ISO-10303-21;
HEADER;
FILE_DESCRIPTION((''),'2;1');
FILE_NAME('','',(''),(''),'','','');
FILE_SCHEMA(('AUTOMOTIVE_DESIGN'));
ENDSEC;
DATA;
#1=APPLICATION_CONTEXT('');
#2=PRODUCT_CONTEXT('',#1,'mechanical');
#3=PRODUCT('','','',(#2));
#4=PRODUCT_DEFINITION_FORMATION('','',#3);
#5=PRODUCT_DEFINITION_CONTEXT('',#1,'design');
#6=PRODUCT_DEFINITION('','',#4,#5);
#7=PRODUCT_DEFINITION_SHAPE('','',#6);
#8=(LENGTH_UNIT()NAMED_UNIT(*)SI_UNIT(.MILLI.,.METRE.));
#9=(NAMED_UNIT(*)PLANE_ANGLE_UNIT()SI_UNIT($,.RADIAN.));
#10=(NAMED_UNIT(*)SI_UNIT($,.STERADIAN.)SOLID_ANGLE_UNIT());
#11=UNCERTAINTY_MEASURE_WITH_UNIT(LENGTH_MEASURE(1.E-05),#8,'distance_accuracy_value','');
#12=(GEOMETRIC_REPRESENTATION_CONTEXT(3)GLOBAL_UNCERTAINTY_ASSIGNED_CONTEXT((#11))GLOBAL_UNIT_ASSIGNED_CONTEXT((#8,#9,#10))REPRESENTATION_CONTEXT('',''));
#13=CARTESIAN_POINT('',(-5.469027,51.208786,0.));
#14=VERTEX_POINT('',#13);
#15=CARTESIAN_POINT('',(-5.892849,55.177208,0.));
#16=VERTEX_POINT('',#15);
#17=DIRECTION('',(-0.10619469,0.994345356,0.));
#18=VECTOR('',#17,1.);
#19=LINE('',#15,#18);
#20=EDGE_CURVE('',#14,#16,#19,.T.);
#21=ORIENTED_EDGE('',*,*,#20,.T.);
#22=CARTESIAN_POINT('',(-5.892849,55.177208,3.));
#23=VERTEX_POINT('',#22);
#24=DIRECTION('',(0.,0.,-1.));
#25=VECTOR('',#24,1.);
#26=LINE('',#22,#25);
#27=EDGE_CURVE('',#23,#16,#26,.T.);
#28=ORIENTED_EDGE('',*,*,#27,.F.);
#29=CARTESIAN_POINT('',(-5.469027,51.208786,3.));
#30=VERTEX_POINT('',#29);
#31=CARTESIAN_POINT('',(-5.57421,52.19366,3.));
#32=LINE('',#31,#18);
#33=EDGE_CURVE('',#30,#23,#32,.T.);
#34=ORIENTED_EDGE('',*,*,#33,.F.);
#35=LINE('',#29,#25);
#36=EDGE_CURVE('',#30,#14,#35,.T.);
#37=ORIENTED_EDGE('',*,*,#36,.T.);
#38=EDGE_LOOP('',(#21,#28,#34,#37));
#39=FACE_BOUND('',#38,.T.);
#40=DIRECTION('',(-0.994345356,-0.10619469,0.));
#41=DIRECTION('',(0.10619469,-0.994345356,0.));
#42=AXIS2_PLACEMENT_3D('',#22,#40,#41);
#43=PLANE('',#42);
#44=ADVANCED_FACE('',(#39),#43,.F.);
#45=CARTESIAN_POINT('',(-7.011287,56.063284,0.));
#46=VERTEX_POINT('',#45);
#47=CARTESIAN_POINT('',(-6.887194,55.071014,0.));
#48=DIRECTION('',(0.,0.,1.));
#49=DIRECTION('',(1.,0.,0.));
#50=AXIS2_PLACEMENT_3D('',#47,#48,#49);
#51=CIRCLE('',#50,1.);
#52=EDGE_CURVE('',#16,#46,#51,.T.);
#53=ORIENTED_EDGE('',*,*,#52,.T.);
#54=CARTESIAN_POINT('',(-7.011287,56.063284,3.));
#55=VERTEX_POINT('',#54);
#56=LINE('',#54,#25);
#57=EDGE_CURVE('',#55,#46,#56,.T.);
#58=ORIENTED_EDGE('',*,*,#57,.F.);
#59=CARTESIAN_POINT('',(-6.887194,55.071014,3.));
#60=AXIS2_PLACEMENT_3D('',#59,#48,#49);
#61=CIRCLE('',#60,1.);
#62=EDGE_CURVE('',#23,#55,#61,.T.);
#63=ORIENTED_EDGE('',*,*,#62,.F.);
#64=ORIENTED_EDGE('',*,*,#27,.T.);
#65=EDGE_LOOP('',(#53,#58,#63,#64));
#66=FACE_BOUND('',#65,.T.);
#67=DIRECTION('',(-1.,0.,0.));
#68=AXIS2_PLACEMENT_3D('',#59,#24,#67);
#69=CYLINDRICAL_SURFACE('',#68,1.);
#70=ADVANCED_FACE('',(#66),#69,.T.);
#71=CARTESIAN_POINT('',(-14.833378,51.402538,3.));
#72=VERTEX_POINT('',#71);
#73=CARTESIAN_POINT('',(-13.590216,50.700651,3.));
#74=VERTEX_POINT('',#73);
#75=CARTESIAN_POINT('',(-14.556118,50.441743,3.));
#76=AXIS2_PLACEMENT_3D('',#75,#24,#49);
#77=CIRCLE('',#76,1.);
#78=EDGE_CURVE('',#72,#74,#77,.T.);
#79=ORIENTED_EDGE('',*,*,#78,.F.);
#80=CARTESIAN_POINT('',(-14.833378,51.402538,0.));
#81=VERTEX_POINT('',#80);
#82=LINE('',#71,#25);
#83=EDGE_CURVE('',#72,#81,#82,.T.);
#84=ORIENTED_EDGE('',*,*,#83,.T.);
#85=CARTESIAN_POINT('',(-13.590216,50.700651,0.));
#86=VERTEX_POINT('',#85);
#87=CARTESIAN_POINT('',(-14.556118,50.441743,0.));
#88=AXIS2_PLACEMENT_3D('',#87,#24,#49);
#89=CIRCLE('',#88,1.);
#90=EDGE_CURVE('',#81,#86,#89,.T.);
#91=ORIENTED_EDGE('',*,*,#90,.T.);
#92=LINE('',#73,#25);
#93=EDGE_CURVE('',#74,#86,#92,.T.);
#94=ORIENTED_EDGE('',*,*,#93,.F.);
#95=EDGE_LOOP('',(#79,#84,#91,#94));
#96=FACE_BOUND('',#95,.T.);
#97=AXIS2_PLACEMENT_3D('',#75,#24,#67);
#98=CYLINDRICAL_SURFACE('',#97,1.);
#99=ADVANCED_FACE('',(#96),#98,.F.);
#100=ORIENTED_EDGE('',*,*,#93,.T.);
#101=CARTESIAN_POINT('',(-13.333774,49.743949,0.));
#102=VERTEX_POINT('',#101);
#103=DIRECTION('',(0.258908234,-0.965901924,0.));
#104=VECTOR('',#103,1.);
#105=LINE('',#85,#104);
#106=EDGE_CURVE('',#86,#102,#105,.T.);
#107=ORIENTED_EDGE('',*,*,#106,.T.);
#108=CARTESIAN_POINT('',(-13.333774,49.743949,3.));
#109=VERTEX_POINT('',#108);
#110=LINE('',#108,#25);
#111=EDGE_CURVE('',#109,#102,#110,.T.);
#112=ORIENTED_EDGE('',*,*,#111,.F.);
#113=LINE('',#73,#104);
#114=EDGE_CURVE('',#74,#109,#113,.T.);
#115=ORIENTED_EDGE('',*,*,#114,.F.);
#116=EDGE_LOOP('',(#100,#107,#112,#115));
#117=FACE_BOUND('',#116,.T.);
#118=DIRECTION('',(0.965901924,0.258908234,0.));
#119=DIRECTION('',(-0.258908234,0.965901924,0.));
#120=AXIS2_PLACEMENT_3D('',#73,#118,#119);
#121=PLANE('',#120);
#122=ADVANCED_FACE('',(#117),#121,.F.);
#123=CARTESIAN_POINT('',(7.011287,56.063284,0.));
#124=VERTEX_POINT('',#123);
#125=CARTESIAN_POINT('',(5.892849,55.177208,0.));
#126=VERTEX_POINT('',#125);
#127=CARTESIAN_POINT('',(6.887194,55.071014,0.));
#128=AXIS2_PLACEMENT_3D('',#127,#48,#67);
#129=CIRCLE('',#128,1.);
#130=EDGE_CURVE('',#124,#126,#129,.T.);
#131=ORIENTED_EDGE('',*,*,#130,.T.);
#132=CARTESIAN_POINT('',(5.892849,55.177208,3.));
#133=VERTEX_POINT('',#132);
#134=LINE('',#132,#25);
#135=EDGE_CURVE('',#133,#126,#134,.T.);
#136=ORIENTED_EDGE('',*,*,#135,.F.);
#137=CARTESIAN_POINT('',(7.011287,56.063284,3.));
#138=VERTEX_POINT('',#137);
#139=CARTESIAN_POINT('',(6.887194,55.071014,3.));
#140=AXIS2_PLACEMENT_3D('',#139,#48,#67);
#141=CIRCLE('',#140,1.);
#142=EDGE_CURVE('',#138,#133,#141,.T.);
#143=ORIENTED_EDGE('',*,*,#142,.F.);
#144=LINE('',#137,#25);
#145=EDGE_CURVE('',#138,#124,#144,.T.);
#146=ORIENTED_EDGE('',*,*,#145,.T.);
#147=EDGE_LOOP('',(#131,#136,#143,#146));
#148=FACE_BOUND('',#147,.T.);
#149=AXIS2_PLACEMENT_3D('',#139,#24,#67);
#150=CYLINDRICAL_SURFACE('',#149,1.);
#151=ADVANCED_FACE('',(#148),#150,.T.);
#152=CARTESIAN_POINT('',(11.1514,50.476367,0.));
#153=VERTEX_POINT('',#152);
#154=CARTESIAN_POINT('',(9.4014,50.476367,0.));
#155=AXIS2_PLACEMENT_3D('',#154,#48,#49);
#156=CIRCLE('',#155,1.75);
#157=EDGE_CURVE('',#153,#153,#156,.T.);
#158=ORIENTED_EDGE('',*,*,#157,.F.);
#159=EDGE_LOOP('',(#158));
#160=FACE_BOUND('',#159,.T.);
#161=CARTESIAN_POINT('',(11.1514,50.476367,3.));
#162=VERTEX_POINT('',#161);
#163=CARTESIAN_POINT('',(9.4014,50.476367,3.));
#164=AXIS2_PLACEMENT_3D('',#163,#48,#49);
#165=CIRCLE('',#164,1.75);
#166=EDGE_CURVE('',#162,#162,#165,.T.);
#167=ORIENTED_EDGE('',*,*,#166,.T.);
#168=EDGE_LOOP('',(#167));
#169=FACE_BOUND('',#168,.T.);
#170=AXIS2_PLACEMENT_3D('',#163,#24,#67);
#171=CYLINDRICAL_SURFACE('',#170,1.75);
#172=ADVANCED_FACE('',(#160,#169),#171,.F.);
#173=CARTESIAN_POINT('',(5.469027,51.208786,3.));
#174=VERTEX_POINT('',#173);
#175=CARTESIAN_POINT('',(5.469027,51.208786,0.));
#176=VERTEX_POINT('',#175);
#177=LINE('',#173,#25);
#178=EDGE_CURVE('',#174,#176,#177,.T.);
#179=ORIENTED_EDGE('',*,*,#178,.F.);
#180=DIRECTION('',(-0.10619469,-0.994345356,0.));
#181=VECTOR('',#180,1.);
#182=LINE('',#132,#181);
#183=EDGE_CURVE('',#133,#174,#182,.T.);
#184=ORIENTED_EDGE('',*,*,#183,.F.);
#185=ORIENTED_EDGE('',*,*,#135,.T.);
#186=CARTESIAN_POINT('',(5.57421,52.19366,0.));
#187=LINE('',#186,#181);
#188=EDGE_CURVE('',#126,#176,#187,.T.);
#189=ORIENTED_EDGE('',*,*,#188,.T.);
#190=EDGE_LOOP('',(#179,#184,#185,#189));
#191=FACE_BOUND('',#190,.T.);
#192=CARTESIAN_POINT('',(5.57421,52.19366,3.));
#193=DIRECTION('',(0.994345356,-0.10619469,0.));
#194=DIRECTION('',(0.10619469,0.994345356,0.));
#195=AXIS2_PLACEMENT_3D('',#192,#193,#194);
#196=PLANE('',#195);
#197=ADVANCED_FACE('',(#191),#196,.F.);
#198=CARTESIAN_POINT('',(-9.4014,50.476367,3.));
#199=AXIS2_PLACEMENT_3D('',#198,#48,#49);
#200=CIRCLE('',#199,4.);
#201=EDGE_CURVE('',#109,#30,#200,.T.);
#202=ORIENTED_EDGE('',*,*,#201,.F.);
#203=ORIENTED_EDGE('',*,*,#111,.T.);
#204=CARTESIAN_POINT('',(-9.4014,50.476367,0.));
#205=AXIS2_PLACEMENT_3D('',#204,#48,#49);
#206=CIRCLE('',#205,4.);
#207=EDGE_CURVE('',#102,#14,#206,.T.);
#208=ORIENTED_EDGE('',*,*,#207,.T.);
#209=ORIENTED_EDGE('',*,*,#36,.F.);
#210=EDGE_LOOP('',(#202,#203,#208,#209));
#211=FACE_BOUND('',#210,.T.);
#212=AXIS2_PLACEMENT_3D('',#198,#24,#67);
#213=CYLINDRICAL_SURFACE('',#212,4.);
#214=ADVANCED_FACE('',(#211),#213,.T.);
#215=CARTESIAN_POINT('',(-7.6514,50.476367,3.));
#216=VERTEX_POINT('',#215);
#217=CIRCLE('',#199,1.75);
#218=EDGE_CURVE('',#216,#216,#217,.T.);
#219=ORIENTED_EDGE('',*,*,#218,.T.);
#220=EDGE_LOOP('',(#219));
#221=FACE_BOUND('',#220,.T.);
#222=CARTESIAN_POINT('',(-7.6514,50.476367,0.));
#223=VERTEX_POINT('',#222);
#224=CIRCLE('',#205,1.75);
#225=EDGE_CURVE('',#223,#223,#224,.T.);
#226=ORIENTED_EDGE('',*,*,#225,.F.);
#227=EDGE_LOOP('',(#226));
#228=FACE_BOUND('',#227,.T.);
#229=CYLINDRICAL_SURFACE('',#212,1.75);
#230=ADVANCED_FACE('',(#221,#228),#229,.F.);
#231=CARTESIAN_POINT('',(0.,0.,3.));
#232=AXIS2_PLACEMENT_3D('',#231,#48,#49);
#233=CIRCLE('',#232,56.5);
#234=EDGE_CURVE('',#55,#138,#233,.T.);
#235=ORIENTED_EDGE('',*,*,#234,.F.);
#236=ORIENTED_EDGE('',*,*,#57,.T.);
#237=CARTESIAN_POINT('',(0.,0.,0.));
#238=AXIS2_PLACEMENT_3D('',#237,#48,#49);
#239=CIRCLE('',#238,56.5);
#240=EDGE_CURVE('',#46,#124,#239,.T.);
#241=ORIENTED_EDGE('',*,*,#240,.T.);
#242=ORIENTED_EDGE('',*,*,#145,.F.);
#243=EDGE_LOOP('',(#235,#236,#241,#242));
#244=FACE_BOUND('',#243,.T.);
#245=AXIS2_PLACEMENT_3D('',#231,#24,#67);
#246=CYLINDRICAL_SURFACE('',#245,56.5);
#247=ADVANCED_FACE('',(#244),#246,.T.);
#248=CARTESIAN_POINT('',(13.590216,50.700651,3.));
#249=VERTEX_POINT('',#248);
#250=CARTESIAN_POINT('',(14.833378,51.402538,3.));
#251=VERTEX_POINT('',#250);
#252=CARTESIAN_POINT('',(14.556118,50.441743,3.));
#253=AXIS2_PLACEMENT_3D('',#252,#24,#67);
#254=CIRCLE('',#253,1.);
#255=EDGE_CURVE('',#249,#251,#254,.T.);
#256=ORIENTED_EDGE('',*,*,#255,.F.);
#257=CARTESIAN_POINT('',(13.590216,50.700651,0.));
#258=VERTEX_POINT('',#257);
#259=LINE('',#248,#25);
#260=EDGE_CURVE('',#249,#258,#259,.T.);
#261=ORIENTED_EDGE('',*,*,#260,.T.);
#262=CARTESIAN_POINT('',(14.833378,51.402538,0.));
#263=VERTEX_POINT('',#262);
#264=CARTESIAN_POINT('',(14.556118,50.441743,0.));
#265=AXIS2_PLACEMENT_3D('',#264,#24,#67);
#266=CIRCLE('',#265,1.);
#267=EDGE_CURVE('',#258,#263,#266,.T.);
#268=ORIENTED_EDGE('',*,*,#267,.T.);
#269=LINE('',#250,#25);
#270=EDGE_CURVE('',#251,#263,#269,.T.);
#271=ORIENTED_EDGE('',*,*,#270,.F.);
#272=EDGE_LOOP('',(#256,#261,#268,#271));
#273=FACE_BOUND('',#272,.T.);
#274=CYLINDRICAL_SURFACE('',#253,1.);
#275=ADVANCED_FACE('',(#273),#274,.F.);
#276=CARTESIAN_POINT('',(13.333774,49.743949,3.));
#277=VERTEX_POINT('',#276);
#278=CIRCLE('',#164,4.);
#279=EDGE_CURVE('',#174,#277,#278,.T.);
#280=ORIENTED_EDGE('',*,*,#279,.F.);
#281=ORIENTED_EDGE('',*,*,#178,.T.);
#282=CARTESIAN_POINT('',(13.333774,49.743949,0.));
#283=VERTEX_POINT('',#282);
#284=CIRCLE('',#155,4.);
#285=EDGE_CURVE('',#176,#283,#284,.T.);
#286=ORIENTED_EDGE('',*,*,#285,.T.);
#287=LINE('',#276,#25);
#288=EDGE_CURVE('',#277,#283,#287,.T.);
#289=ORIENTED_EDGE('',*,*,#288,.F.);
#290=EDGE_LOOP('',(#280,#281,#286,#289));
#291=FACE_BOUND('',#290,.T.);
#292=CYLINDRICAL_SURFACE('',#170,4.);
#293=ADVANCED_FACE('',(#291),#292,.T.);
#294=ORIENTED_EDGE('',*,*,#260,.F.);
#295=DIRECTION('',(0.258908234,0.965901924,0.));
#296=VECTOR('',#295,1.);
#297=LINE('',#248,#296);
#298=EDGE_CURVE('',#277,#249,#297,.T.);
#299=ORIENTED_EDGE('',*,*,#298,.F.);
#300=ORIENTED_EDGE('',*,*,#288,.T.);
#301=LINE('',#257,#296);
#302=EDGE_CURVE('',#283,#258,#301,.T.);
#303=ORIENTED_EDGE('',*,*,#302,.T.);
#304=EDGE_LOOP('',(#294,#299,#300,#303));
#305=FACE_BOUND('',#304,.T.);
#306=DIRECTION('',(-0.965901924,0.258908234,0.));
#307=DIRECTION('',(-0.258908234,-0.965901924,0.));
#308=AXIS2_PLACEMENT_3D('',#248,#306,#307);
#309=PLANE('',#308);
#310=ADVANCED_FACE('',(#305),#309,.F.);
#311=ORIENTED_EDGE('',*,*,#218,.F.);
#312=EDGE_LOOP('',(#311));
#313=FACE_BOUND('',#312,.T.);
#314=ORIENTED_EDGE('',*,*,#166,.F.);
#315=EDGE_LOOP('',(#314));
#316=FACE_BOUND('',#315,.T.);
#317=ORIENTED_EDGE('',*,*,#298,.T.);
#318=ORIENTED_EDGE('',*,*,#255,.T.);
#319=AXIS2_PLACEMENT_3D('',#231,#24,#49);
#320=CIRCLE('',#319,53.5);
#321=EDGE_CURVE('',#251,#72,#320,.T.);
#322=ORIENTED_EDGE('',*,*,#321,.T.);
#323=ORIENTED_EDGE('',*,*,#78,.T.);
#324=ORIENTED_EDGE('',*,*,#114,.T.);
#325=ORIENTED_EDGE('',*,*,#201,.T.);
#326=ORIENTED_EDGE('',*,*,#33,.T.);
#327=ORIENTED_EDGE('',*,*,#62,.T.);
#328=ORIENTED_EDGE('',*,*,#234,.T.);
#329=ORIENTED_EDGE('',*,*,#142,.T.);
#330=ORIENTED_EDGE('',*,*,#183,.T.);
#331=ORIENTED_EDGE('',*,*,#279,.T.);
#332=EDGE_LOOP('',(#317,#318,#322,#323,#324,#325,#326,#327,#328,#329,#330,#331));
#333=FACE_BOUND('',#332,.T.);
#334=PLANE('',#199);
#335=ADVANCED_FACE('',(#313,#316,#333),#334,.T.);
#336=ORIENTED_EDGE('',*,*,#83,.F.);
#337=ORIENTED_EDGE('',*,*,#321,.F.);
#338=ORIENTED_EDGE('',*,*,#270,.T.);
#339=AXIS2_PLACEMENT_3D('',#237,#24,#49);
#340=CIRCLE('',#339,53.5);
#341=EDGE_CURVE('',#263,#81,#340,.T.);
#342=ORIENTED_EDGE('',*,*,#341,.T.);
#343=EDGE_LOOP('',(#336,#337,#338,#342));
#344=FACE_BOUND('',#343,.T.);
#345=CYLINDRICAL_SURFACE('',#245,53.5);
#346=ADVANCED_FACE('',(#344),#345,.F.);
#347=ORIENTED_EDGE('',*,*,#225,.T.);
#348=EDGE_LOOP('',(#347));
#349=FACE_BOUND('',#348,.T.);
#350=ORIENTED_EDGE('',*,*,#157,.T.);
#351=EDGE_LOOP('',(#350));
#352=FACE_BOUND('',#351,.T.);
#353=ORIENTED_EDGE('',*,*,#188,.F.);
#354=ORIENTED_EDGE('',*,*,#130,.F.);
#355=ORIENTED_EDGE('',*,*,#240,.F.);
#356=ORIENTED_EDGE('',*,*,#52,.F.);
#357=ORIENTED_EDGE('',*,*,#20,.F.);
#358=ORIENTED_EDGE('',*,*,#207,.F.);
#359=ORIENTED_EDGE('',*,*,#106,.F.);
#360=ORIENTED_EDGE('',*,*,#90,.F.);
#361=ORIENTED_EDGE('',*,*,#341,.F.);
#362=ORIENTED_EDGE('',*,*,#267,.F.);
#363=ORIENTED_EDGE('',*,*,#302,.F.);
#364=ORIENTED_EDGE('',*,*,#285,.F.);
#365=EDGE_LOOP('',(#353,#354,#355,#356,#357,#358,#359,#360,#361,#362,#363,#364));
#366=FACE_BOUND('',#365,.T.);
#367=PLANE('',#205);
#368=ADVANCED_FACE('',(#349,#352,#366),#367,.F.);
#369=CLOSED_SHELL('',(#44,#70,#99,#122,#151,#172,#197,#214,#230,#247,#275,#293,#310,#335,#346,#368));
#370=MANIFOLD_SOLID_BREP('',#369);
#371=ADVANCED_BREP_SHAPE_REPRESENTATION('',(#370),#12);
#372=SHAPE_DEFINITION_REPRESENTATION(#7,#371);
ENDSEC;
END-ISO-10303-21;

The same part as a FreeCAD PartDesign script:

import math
import FreeCAD as App
import Part
import Sketcher
from FreeCAD import Vector
Q = App.Units.Quantity

doc = App.newDocument("Part")
body = doc.addObject("PartDesign::Body", "Body")

sketch1 = body.newObject("Sketcher::SketchObject", "Sketch")
sketch1.AttachmentSupport = (doc.getObject("XY_Plane"), [""])
sketch1.MapMode = "FlatFace"
sketch1.addGeometry([
    Part.LineSegment(Vector(-5.57421, 52.19366, 0), Vector(-5.892849, 55.177208, 0)),
    Part.ArcOfCircle(Part.Circle(Vector(-6.887194, 55.071014, 0), Vector(0, 0, 1), 1), math.radians(6.096002), math.radians(97.128414)),
    Part.ArcOfCircle(Part.Circle(Vector(0, 0, 0), Vector(0, 0, 1), 56.5), math.radians(97.128414), math.radians(442.871586)),
    Part.ArcOfCircle(Part.Circle(Vector(6.887194, 55.071014, 0), Vector(0, 0, 1), 1), math.radians(82.871586), math.radians(173.903998)),
    Part.LineSegment(Vector(5.892849, 55.177208, 0), Vector(5.57421, 52.19366, 0)),
    Part.LineSegment(Vector(5.57421, 52.19366, 0), Vector(5.469027, 51.208786, 0)),
    Part.ArcOfCircle(Part.Circle(Vector(9.4014, 50.476367, 0), Vector(0, 0, 1), 4), math.radians(169.449354), math.radians(349.449354)),
    Part.LineSegment(Vector(13.333774, 49.743949, 0), Vector(13.590216, 50.700651, 0)),
    Part.ArcOfCircle(Part.Circle(Vector(14.556118, 50.441743, 0), Vector(0, 0, 1), 1), math.radians(73.903295), math.radians(164.994709)),
    Part.ArcOfCircle(Part.Circle(Vector(0, 0, 0), Vector(0, 0, 1), 53.5), math.radians(106.096705), math.radians(433.903295)),
    Part.ArcOfCircle(Part.Circle(Vector(-14.556118, 50.441743, 0), Vector(0, 0, 1), 1), math.radians(15.005291), math.radians(106.096705)),
    Part.LineSegment(Vector(-13.590216, 50.700651, 0), Vector(-13.333774, 49.743949, 0)),
    Part.ArcOfCircle(Part.Circle(Vector(-9.4014, 50.476367, 0), Vector(0, 0, 1), 4), math.radians(-169.449354), math.radians(10.550646)),
    Part.LineSegment(Vector(-5.469027, 51.208786, 0), Vector(-5.57421, 52.19366, 0)),
    Part.Circle(Vector(9.4014, 50.476367, 0), Vector(0, 0, 1), 1.75),
    Part.Circle(Vector(-9.4014, 50.476367, 0), Vector(0, 0, 1), 1.75),
], False)
sketch1.addConstraint([
    Sketcher.Constraint("Coincident", 0, 2, 1, 1),
    Sketcher.Constraint("Coincident", 1, 2, 2, 1),
    Sketcher.Constraint("Coincident", 2, 2, 3, 1),
    Sketcher.Constraint("Coincident", 3, 2, 4, 1),
    Sketcher.Constraint("Coincident", 4, 2, 5, 1),
    Sketcher.Constraint("Coincident", 5, 2, 6, 1),
    Sketcher.Constraint("Coincident", 6, 2, 7, 1),
    Sketcher.Constraint("Coincident", 7, 2, 8, 2),
    Sketcher.Constraint("Coincident", 8, 1, 9, 2),
    Sketcher.Constraint("Coincident", 9, 1, 10, 2),
    Sketcher.Constraint("Coincident", 10, 1, 11, 1),
    Sketcher.Constraint("Coincident", 11, 2, 12, 1),
    Sketcher.Constraint("Coincident", 12, 2, 13, 1),
    Sketcher.Constraint("Coincident", 13, 2, 0, 1),
    Sketcher.Constraint("Coincident", 2, 3, -1, 1),
    Sketcher.Constraint("Coincident", 9, 3, -1, 1),
    Sketcher.Constraint("Coincident", 14, 3, 6, 3),
    Sketcher.Constraint("Coincident", 15, 3, 12, 3),
    Sketcher.Constraint("Radius", 1, Q("1 mm")),
    Sketcher.Constraint("Radius", 3, Q("1 mm")),
    Sketcher.Constraint("Radius", 6, Q("4 mm")),
    Sketcher.Constraint("Radius", 8, Q("1 mm")),
    Sketcher.Constraint("Radius", 10, Q("1 mm")),
    Sketcher.Constraint("Radius", 12, Q("4 mm")),
    Sketcher.Constraint("Diameter", 14, Q("3.5 mm")),
    Sketcher.Constraint("Diameter", 15, Q("3.5 mm")),
    Sketcher.Constraint("Radius", 2, Q("56.5 mm")),
    Sketcher.Constraint("Radius", 9, Q("53.5 mm")),
    Sketcher.Constraint("DistanceX", -1, 1, 6, 3, Q("9.4014 mm")),
    Sketcher.Constraint("DistanceX", 12, 3, -1, 1, Q("9.4014 mm")),
    Sketcher.Constraint("DistanceX", 7, 2, 8, 3, Q("0.965902 mm")),
    Sketcher.Constraint("DistanceX", 10, 3, 10, 1, Q("0.965902 mm")),
    Sketcher.Constraint("DistanceY", 12, 2, 1, 2, Q("4.854498 mm")),
    Sketcher.Constraint("DistanceX", -1, 1, 8, 3, Q("14.556118 mm")),
    Sketcher.Constraint("DistanceX", 10, 3, -1, 1, Q("14.556118 mm")),
    Sketcher.Constraint("DistanceX", 0, 2, -1, 1, Q("5.892849 mm")),
    Sketcher.Constraint("DistanceY", -1, 1, 0, 2, Q("55.177208 mm")),
    Sketcher.Constraint("DistanceX", -1, 1, 3, 2, Q("5.892849 mm")),
    Sketcher.Constraint("DistanceY", -1, 1, 3, 2, Q("55.177208 mm")),
    Sketcher.Constraint("DistanceX", -1, 1, 4, 2, Q("5.57421 mm")),
    Sketcher.Constraint("DistanceY", -1, 1, 4, 2, Q("52.19366 mm")),
    Sketcher.Constraint("DistanceY", -1, 1, 6, 2, Q("49.743949 mm")),
    Sketcher.Constraint("DistanceY", -1, 1, 11, 2, Q("49.743949 mm")),
    Sketcher.Constraint("DistanceX", 13, 2, -1, 1, Q("5.57421 mm")),
    Sketcher.Constraint("DistanceY", -1, 1, 13, 2, Q("52.19366 mm")),
    Sketcher.Constraint("DistanceY", 12, 3, 0, 2, Q("4.700841 mm")),
    Sketcher.Constraint("DistanceY", 1, 3, 1, 2, Q("0.992271 mm")),
    Sketcher.Constraint("DistanceY", 3, 3, 2, 2, Q("0.992271 mm")),
    Sketcher.Constraint("DistanceY", 6, 3, 3, 2, Q("4.700841 mm")),
    Sketcher.Constraint("DistanceX", 5, 2, 3, 2, Q("0.423822 mm")),
    Sketcher.Constraint("DistanceX", 8, 3, 8, 1, Q("0.277259 mm")),
    Sketcher.Constraint("DistanceX", 9, 1, 10, 3, Q("0.277259 mm")),
])
pad1 = body.newObject("PartDesign::Pad", "Pad")
pad1.Profile = sketch1
pad1.Length = 3

doc.recompute()
